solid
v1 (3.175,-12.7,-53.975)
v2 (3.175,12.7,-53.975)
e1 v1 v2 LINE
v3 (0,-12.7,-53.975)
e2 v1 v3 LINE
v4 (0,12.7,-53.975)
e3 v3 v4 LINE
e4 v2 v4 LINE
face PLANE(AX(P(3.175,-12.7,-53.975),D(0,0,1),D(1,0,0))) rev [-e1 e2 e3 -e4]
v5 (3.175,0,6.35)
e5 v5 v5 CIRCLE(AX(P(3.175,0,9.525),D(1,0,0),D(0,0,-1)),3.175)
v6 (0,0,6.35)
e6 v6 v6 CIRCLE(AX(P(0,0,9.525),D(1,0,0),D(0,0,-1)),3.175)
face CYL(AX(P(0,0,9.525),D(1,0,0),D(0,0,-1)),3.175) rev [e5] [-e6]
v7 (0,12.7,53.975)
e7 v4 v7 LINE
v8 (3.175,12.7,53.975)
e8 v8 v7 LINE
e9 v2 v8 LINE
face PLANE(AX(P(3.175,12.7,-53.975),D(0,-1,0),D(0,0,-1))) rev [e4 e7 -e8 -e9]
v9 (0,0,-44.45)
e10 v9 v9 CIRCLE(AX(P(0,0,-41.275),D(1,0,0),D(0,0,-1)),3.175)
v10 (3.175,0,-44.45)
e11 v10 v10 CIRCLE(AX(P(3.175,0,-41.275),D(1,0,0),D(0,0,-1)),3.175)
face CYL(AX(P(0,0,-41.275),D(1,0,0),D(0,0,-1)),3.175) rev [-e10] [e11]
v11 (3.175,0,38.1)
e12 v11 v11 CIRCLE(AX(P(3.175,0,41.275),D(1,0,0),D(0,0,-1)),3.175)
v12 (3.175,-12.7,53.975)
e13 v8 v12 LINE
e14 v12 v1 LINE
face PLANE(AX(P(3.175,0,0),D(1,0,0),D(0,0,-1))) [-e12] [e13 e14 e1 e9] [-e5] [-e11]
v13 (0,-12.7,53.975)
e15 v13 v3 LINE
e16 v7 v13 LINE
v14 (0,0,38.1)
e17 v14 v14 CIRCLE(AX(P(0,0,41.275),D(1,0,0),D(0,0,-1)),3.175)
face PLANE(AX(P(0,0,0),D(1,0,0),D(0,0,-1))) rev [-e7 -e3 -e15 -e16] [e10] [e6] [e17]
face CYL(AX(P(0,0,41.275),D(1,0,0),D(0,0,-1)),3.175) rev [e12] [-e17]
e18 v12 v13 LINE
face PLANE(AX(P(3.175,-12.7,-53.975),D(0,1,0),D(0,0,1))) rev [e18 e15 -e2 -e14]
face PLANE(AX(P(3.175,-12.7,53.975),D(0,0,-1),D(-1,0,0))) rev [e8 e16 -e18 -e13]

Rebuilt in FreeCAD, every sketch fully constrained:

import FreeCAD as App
import Part
import Sketcher

V = App.Vector
Q = App.Units.Quantity

doc = App.newDocument("Part")
body = doc.addObject("PartDesign::Body", "Body")

# Sketch on YZ plane
sketch1 = body.newObject("Sketcher::SketchObject", "Sketch")
sketch1.AttachmentSupport = (doc.getObject("YZ_Plane"), [""])
sketch1.MapMode = "FlatFace"
sketch1.addGeometry(Part.LineSegment(V(13, 54, 0), V(-13, 54, 0)), False)
sketch1.addGeometry(Part.LineSegment(V(-13, 54, 0), V(-13, -54, 0)), False)
sketch1.addGeometry(Part.LineSegment(V(-13, -54, 0), V(13, -54, 0)), False)
sketch1.addGeometry(Part.LineSegment(V(13, -54, 0), V(13, 54, 0)), False)
sketch1.addConstraint(Sketcher.Constraint("Coincident", 0, 2, 1, 1))
sketch1.addConstraint(Sketcher.Constraint("Coincident", 1, 2, 2, 1))
sketch1.addConstraint(Sketcher.Constraint("Coincident", 2, 2, 3, 1))
sketch1.addConstraint(Sketcher.Constraint("Coincident", 3, 2, 0, 1))
sketch1.addConstraint(Sketcher.Constraint("Horizontal", 0))
sketch1.addConstraint(Sketcher.Constraint("Vertical", 1))
sketch1.addConstraint(Sketcher.Constraint("Horizontal", 2))
sketch1.addConstraint(Sketcher.Constraint("Vertical", 3))
sketch1.addConstraint(Sketcher.Constraint("Symmetric", 0, 2, 2, 2, -1, 1))
sketch1.addConstraint(Sketcher.Constraint("DistanceX", 0, 2, 0, 1, Q("1 in")))
sketch1.addConstraint(Sketcher.Constraint("DistanceY", 1, 2, 1, 1, Q("4.25 in")))
pad1 = body.newObject("PartDesign::Pad", "Pad")
pad1.Profile = sketch1
pad1.Length = Q("0.125 in")

# Sketch on YZ plane
sketch2 = body.newObject("Sketcher::SketchObject", "Sketch001")
sketch2.AttachmentSupport = (doc.getObject("YZ_Plane"), [""])
sketch2.MapMode = "FlatFace"
sketch2.AttachmentOffset = App.Placement(V(0, 0, 0.125 * 25.4), App.Rotation())
sketch2.addGeometry(Part.Circle(V(0, -41.3, 0), V(0, 0, 1), 3.2), False)
sketch2.addGeometry(Part.Circle(V(0, 9.5, 0), V(0, 0, 1), 3.2), False)
sketch2.addGeometry(Part.Circle(V(0, 41.3, 0), V(0, 0, 1), 3.2), False)
sketch2.addConstraint(Sketcher.Constraint("Equal", 0, 1))
sketch2.addConstraint(Sketcher.Constraint("Equal", 1, 2))
sketch2.addConstraint(Sketcher.Constraint("Symmetric", 0, 3, 2, 3, -1, 1))
sketch2.addConstraint(Sketcher.Constraint("PointOnObject", 0, 3, -2))
sketch2.addConstraint(Sketcher.Constraint("PointOnObject", 1, 3, -2))
sketch2.addConstraint(Sketcher.Constraint("Diameter", 0, Q("0.25 in")))
sketch2.addConstraint(Sketcher.Constraint("DistanceY", 0, 3, 1, 3, Q("2 in")))
sketch2.addConstraint(Sketcher.Constraint("DistanceY", 1, 3, 2, 3, Q("1.25 in")))
pocket1 = body.newObject("PartDesign::Pocket", "Pocket")
pocket1.Profile = sketch2
pocket1.Type = "ThroughAll"

doc.recompute()
